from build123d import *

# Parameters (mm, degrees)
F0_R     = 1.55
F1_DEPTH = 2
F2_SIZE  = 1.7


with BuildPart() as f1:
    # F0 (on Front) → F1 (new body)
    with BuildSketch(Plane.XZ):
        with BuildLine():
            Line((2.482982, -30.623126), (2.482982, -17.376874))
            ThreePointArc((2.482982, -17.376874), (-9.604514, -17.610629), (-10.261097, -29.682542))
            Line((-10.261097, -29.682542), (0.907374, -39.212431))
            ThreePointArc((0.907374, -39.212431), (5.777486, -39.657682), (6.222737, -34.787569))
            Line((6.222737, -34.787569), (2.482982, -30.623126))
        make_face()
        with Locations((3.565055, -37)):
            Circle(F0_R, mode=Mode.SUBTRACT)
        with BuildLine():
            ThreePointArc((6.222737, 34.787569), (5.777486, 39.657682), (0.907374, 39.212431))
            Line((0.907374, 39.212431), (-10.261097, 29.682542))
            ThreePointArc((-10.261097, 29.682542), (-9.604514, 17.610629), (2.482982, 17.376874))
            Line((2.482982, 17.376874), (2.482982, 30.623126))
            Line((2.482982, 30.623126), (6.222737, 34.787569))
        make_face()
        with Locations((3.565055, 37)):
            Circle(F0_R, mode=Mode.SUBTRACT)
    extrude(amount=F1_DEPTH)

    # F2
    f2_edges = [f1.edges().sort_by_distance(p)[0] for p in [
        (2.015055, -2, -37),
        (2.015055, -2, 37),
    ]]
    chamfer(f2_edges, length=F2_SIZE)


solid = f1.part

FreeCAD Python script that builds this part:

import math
import FreeCAD as App
import Part
import Sketcher

V = App.Vector
Q = App.Units.Quantity


def edges_at(feature, points):
    """Names of the edges that pass closest to the given points."""
    edges = feature.Shape.Edges
    near = lambda p: min(range(len(edges)), key=lambda i: edges[i].distToShape(Part.Vertex(*p))[0])
    return sorted({f"Edge{near(p) + 1}" for p in points})

doc = App.newDocument("Part")
body = doc.addObject("PartDesign::Body", "Body")
body.AllowCompound = True

sketch1 = doc.addObject("Sketcher::SketchObject", "Sketch")
body.addObject(sketch1)
sketch1.AttachmentSupport = (doc.XZ_Plane, [""])
sketch1.MapMode = "FlatFace"
sketch1.addGeometry([
    Part.LineSegment(V(2.5, -30.6, 0), V(2.5, -17.4, 0)),
    Part.ArcOfCircle(Part.Circle(V(-3.4, -24, 0), V(0, 0, 1), 8.9), math.radians(48), math.radians(220)),
    Part.LineSegment(V(-10.3, -29.7, 0), V(0.9, -39.2, 0)),
    Part.ArcOfCircle(Part.Circle(V(3.6, -37, 0), V(0, 0, 1), 3.5), math.radians(-140), math.radians(40)),
    Part.LineSegment(V(6.2, -34.8, 0), V(2.5, -30.6, 0)),
    Part.Circle(V(3.6, -37, 0), V(0, 0, 1), 1.6),
    Part.ArcOfCircle(Part.Circle(V(3.6, 37, 0), V(0, 0, 1), 3.5), math.radians(-40), math.radians(140)),
    Part.LineSegment(V(0.9, 39.2, 0), V(-10.3, 29.7, 0)),
    Part.ArcOfCircle(Part.Circle(V(-3.4, 24, 0), V(0, 0, 1), 8.9), math.radians(140), math.radians(312)),
    Part.LineSegment(V(2.5, 17.4, 0), V(2.5, 30.6, 0)),
    Part.LineSegment(V(2.5, 30.6, 0), V(6.2, 34.8, 0)),
    Part.Circle(V(3.6, 37, 0), V(0, 0, 1), 1.6),
], False)
sketch1.addConstraint([
    Sketcher.Constraint("Coincident", 0, 2, 1, 1),
    Sketcher.Constraint("Coincident", 1, 2, 2, 1),
    Sketcher.Constraint("Coincident", 2, 2, 3, 1),
    Sketcher.Constraint("Coincident", 3, 2, 4, 1),
    Sketcher.Constraint("Coincident", 4, 2, 0, 1),
    Sketcher.Constraint("Coincident", 6, 2, 7, 1),
    Sketcher.Constraint("Coincident", 7, 2, 8, 1),
    Sketcher.Constraint("Coincident", 8, 2, 9, 1),
    Sketcher.Constraint("Coincident", 9, 2, 10, 1),
    Sketcher.Constraint("Coincident", 10, 2, 6, 1),
    Sketcher.Constraint("Vertical", 0),
    Sketcher.Constraint("Vertical", 9),
    Sketcher.Constraint("Coincident", 5, 3, 3, 3),
    Sketcher.Constraint("Coincident", 11, 3, 6, 3),
    Sketcher.Constraint("Equal", 3, 6),
    Sketcher.Constraint("Equal", 1, 8),
    Sketcher.Constraint("Equal", 5, 11),
    Sketcher.Constraint("Symmetric", 3, 3, 6, 3, -1),
    Sketcher.Constraint("Symmetric", 1, 3, 8, 3, -1),
    Sketcher.Constraint("Symmetric", 4, 2, 9, 2, -1),
    Sketcher.Constraint("Vertical", 2, 2, 6, 2),
    Sketcher.Constraint("Vertical", 1, 2, 7, 2),
    Sketcher.Constraint("Vertical", 3, 2, 10, 2),
    Sketcher.Constraint("Diameter", 5, Q("3.1 mm")),
    Sketcher.Constraint("DistanceY", 1, 3, -1, 1, Q("24 mm")),
    Sketcher.Constraint("DistanceY", 3, 3, -1, 1, Q("37 mm")),
    Sketcher.Constraint("DistanceX", 1, 3, 3, 3, Q("7 mm")),
    Sketcher.Constraint("Radius", 1, Q("8.881872 mm")),
    Sketcher.Constraint("Radius", 3, Q("3.458052 mm")),
    Sketcher.Constraint("DistanceY", 0, 1, 0, 2, Q("13.246252 mm")),
    Sketcher.Constraint("Distance", 2, Q("14.681741 mm")),
    Sketcher.Constraint("DistanceX", -1, 1, 0, 2, Q("2.482982 mm")),
    Sketcher.Constraint("DistanceY", 2, 2, -1, 1, Q("39.212431 mm")),
    Sketcher.Constraint("DistanceY", 3, 2, -1, 1, Q("34.787569 mm")),
    Sketcher.Constraint("DistanceX", 1, 2, 0, 2, Q("12.744079 mm")),
])
pad1 = doc.addObject("PartDesign::Pad", "Pad")
body.addObject(pad1)
pad1.Profile = sketch1
pad1.Length = 2
doc.recompute()

chamfer = doc.addObject("PartDesign::Chamfer", "Chamfer")
body.addObject(chamfer)
chamfer.Base = (pad1, edges_at(pad1, [(2.015, -2, -37), (2.015, -2, 37)]))
chamfer.Size = 1.7

doc.recompute()
